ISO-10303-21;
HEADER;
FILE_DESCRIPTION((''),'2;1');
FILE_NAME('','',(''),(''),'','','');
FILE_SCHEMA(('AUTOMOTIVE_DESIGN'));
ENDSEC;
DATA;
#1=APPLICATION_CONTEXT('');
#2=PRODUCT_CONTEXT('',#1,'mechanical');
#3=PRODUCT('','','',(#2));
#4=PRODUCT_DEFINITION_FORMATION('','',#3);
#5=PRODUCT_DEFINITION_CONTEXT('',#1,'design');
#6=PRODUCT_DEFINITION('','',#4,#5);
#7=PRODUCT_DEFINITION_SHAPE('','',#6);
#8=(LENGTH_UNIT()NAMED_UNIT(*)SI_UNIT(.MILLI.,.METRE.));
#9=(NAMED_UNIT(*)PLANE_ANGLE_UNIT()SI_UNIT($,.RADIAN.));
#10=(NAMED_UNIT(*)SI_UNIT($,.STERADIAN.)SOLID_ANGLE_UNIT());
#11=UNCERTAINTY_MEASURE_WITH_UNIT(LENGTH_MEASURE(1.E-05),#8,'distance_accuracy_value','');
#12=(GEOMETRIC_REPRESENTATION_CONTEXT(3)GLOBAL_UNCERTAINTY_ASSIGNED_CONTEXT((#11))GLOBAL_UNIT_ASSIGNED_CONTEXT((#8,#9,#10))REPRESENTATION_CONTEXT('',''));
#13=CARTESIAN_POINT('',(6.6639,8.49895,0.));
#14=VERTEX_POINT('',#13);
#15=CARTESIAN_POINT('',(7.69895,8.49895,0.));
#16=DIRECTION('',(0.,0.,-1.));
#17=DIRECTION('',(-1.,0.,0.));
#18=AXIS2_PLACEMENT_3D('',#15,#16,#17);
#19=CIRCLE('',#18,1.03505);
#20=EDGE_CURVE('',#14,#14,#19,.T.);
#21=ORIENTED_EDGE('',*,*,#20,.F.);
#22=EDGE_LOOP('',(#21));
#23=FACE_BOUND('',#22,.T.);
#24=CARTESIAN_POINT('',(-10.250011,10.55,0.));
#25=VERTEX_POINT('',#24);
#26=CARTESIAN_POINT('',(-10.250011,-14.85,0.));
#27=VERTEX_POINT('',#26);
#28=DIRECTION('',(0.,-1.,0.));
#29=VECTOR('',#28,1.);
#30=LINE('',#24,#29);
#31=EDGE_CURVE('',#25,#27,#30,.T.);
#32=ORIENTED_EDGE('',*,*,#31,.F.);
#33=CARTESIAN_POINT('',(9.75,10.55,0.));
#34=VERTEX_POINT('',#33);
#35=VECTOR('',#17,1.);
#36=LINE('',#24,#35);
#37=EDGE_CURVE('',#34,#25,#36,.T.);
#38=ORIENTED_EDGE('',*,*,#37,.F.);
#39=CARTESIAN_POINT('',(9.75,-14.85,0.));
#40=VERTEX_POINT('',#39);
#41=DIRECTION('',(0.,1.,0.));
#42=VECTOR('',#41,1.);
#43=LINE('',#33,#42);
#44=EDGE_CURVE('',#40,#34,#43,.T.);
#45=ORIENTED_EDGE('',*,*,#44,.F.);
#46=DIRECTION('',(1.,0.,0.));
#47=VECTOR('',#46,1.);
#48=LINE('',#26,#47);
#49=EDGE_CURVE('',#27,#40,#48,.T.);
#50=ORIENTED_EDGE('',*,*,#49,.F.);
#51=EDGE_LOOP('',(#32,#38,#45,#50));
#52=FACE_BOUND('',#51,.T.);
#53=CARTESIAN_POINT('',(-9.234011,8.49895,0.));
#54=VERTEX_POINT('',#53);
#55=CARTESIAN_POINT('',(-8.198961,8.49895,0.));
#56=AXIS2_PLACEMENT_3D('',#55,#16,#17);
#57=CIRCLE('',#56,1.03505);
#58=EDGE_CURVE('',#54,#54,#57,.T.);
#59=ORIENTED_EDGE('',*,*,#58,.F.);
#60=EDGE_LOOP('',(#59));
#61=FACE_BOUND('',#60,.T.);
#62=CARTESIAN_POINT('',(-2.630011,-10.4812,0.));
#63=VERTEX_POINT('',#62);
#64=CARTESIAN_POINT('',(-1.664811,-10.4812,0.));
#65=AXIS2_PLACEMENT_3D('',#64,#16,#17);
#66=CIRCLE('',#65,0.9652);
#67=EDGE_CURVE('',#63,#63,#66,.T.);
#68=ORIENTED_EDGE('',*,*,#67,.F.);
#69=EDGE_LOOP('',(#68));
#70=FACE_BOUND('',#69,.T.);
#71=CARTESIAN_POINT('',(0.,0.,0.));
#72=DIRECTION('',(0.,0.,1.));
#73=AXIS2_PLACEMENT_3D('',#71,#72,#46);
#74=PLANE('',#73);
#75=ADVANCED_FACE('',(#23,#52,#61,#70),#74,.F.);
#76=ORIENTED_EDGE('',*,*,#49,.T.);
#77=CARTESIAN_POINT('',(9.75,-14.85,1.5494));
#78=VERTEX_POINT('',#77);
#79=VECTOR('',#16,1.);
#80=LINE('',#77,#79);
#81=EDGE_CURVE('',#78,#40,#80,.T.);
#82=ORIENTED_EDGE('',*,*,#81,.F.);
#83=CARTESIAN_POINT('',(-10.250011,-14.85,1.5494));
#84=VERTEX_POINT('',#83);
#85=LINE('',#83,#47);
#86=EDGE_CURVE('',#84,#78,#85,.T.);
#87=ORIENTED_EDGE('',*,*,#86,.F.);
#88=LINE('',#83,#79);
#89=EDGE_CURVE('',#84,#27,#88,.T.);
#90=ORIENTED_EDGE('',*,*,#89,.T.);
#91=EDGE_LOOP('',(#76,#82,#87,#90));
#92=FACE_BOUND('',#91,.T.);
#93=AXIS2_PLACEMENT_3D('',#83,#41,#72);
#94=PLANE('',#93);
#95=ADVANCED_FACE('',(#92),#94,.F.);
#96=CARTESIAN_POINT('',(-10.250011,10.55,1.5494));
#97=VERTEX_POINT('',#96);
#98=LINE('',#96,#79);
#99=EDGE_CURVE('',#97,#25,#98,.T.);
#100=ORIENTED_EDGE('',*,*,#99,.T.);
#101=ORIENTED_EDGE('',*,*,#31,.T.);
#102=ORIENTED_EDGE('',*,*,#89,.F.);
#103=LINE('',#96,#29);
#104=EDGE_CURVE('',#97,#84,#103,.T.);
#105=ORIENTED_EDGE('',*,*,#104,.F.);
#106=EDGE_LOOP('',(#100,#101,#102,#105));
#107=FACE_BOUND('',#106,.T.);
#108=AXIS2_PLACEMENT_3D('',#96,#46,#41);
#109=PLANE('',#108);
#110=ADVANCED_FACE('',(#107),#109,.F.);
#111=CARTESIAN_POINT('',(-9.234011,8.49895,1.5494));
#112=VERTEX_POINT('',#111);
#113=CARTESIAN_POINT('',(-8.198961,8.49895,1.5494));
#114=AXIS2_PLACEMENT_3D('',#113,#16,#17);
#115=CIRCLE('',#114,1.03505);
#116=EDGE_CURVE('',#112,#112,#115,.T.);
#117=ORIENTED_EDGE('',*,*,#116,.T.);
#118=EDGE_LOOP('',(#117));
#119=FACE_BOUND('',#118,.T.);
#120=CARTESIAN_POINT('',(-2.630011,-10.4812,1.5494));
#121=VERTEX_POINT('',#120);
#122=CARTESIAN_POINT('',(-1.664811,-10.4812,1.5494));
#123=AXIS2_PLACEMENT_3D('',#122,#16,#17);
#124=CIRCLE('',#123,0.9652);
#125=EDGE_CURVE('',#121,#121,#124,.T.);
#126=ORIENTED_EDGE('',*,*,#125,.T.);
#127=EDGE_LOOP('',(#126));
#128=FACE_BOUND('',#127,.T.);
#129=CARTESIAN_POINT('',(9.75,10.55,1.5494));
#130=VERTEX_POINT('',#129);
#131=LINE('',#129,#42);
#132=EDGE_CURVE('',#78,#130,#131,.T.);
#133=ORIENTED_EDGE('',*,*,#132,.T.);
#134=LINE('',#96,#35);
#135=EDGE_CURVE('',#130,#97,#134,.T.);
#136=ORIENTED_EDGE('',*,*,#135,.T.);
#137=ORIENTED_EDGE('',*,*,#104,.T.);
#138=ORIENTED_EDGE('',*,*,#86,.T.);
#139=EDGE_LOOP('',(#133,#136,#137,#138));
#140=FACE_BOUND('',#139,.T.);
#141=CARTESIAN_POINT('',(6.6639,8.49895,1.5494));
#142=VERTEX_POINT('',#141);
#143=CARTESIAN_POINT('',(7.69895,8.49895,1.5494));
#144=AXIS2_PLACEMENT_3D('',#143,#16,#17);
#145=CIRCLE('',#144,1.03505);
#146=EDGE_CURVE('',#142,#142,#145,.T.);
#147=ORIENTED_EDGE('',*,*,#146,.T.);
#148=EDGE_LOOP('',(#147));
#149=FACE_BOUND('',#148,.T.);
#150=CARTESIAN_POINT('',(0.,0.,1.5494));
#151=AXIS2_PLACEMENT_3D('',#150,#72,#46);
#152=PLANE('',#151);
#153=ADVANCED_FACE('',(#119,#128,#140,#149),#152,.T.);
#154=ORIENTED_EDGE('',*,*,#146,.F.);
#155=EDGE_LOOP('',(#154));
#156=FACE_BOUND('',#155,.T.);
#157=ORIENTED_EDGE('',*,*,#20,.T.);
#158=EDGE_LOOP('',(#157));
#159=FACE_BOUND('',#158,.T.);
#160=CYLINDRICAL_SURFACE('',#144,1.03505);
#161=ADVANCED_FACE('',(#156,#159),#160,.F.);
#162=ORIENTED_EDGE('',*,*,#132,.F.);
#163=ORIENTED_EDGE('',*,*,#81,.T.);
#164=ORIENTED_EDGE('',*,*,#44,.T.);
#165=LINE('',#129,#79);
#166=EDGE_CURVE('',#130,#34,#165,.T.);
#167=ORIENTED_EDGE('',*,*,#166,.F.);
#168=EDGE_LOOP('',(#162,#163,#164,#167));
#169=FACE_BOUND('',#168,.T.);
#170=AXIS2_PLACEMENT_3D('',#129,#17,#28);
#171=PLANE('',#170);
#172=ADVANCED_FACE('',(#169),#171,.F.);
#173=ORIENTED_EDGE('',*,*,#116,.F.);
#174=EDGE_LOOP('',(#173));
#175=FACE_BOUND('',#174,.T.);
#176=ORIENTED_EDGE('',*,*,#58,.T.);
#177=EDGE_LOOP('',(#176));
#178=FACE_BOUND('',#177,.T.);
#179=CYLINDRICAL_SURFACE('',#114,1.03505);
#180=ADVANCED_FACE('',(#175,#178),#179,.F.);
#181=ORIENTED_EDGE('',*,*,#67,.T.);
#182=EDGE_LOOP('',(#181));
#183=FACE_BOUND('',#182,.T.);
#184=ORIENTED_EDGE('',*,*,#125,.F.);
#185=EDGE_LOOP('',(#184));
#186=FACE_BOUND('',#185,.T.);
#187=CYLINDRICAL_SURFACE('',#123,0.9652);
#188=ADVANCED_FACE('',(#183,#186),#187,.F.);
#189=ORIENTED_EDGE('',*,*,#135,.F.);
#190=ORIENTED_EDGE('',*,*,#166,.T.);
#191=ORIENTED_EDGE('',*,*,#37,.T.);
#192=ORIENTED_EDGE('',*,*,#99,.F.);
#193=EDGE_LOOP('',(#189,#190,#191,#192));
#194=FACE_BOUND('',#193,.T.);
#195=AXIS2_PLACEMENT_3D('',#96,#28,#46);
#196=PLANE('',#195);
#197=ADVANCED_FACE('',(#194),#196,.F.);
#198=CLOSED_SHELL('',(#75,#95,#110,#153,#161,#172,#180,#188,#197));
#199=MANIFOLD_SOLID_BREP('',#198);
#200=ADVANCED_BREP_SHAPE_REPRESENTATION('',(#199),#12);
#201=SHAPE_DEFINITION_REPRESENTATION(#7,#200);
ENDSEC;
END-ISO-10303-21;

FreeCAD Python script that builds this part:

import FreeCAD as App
import Part
import Sketcher

V = App.Vector
Q = App.Units.Quantity

doc = App.newDocument("Part")
body = doc.addObject("PartDesign::Body", "Body")

sketch1 = body.newObject("Sketcher::SketchObject", "Sketch")
sketch1.AttachmentSupport = (doc.getObject("XY_Plane"), [""])
sketch1.MapMode = "FlatFace"
sketch1.addGeometry([
    Part.LineSegment(V(-10.250011, 10.55, 0), V(-10.250011, -14.85, 0)),
    Part.LineSegment(V(-10.250011, -14.85, 0), V(9.75, -14.85, 0)),
    Part.LineSegment(V(9.75, -14.85, 0), V(9.75, 10.55, 0)),
    Part.LineSegment(V(9.75, 10.55, 0), V(-10.250011, 10.55, 0)),
], False)
sketch1.addConstraint([
    Sketcher.Constraint("Coincident", 0, 2, 1, 1),
    Sketcher.Constraint("Coincident", 1, 2, 2, 1),
    Sketcher.Constraint("Coincident", 2, 2, 3, 1),
    Sketcher.Constraint("Coincident", 3, 2, 0, 1),
    Sketcher.Constraint("Vertical", 0),
    Sketcher.Constraint("Horizontal", 1),
    Sketcher.Constraint("Vertical", 2),
    Sketcher.Constraint("Horizontal", 3),
    Sketcher.Constraint("DistanceY", 0, 2, 0, 1, Q("1 in")),
    Sketcher.Constraint("DistanceX", 1, 1, 1, 2, 20.000011),
    Sketcher.Constraint("DistanceY", 0, 2, -1, 1, 14.85),
    Sketcher.Constraint("DistanceX", -1, 1, 1, 2, 9.75),
])
pad1 = body.newObject("PartDesign::Pad", "Pad")
pad1.Profile = sketch1
pad1.Length = Q("0.061 in")

sketch2 = body.newObject("Sketcher::SketchObject", "Sketch001")
sketch2.AttachmentSupport = (doc.getObject("XY_Plane"), [""])
sketch2.MapMode = "FlatFace"
sketch2.addGeometry([
    Part.Circle(V(-8.198961, 8.49895, 0), V(0, 0, 1), 1.03505),
    Part.Circle(V(7.69895, 8.49895, 0), V(0, 0, 1), 1.03505),
    Part.Circle(V(-1.664811, -10.4812, 0), V(0, 0, 1), 0.9652),
], False)
sketch2.addConstraint([
    Sketcher.Constraint("Equal", 0, 1),
    Sketcher.Constraint("Horizontal", 0, 3, 1, 3),
    Sketcher.Constraint("Diameter", 2, Q("0.076 in")),
    Sketcher.Constraint("Diameter", 0, Q("0.0815 in")),
    Sketcher.Constraint("DistanceY", 2, 3, -1, 1, 10.4812),
    Sketcher.Constraint("DistanceX", 0, 3, -1, 1, 8.198961),
    Sketcher.Constraint("DistanceY", -1, 1, 0, 3, 8.49895),
    Sketcher.Constraint("DistanceX", -1, 1, 1, 3, 7.69895),
    Sketcher.Constraint("DistanceX", 2, 3, -1, 1, 1.664811),
])
pocket1 = body.newObject("PartDesign::Pocket", "Pocket")
pocket1.Profile = sketch2
pocket1.Type = "ThroughAll"
pocket1.Reversed = True

doc.recompute()
